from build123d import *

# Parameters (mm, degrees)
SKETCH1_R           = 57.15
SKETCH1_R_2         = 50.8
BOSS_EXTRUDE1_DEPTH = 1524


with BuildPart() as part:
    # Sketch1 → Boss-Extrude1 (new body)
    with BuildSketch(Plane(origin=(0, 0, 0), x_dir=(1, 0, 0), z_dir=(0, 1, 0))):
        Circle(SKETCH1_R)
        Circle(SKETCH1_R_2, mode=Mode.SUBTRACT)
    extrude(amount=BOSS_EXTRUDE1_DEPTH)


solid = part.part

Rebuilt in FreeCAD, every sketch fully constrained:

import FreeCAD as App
import Part
import Sketcher

V = App.Vector
Q = App.Units.Quantity

doc = App.newDocument("Part")
params = doc.addObject("Spreadsheet::Sheet", "Params")
for row, (alias, value) in enumerate([
    ("sketch1_diameter", "4 in"),
    ("sketch1_diameter2", "4.5 in"),
    ("pad1_length", "60 in"),
], start=1):
    params.set(f"A{row}", alias)
    params.set(f"B{row}", "=" + value)
    params.setAlias(f"B{row}", alias)

body = doc.addObject("PartDesign::Body", "Body")

# Sketch on XZ plane
sketch1 = body.newObject("Sketcher::SketchObject", "Sketch")
sketch1.AttachmentSupport = (doc.getObject("XZ_Plane"), [""])
sketch1.MapMode = "FlatFace"
sketch1.addGeometry(Part.Circle(V(0, 0, 0), V(0, 0, 1), 57), False)
sketch1.addGeometry(Part.Circle(V(0, 0, 0), V(0, 0, 1), 51), False)
sketch1.addConstraint(Sketcher.Constraint("Coincident", 0, 3, -1, 1))
sketch1.addConstraint(Sketcher.Constraint("Coincident", 1, 3, -1, 1))
sketch1.addConstraint(Sketcher.Constraint("Diameter", 1, Q("4 in")))
sketch1.addConstraint(Sketcher.Constraint("Diameter", 0, Q("4.5 in")))
sketch1.setExpression("Constraints[2]", "Params.sketch1_diameter")
sketch1.setExpression("Constraints[3]", "Params.sketch1_diameter2")
pad1 = body.newObject("PartDesign::Pad", "Pad")
pad1.Profile = sketch1
pad1.setExpression("Length", "Params.pad1_length")
pad1.Reversed = True

doc.recompute()
